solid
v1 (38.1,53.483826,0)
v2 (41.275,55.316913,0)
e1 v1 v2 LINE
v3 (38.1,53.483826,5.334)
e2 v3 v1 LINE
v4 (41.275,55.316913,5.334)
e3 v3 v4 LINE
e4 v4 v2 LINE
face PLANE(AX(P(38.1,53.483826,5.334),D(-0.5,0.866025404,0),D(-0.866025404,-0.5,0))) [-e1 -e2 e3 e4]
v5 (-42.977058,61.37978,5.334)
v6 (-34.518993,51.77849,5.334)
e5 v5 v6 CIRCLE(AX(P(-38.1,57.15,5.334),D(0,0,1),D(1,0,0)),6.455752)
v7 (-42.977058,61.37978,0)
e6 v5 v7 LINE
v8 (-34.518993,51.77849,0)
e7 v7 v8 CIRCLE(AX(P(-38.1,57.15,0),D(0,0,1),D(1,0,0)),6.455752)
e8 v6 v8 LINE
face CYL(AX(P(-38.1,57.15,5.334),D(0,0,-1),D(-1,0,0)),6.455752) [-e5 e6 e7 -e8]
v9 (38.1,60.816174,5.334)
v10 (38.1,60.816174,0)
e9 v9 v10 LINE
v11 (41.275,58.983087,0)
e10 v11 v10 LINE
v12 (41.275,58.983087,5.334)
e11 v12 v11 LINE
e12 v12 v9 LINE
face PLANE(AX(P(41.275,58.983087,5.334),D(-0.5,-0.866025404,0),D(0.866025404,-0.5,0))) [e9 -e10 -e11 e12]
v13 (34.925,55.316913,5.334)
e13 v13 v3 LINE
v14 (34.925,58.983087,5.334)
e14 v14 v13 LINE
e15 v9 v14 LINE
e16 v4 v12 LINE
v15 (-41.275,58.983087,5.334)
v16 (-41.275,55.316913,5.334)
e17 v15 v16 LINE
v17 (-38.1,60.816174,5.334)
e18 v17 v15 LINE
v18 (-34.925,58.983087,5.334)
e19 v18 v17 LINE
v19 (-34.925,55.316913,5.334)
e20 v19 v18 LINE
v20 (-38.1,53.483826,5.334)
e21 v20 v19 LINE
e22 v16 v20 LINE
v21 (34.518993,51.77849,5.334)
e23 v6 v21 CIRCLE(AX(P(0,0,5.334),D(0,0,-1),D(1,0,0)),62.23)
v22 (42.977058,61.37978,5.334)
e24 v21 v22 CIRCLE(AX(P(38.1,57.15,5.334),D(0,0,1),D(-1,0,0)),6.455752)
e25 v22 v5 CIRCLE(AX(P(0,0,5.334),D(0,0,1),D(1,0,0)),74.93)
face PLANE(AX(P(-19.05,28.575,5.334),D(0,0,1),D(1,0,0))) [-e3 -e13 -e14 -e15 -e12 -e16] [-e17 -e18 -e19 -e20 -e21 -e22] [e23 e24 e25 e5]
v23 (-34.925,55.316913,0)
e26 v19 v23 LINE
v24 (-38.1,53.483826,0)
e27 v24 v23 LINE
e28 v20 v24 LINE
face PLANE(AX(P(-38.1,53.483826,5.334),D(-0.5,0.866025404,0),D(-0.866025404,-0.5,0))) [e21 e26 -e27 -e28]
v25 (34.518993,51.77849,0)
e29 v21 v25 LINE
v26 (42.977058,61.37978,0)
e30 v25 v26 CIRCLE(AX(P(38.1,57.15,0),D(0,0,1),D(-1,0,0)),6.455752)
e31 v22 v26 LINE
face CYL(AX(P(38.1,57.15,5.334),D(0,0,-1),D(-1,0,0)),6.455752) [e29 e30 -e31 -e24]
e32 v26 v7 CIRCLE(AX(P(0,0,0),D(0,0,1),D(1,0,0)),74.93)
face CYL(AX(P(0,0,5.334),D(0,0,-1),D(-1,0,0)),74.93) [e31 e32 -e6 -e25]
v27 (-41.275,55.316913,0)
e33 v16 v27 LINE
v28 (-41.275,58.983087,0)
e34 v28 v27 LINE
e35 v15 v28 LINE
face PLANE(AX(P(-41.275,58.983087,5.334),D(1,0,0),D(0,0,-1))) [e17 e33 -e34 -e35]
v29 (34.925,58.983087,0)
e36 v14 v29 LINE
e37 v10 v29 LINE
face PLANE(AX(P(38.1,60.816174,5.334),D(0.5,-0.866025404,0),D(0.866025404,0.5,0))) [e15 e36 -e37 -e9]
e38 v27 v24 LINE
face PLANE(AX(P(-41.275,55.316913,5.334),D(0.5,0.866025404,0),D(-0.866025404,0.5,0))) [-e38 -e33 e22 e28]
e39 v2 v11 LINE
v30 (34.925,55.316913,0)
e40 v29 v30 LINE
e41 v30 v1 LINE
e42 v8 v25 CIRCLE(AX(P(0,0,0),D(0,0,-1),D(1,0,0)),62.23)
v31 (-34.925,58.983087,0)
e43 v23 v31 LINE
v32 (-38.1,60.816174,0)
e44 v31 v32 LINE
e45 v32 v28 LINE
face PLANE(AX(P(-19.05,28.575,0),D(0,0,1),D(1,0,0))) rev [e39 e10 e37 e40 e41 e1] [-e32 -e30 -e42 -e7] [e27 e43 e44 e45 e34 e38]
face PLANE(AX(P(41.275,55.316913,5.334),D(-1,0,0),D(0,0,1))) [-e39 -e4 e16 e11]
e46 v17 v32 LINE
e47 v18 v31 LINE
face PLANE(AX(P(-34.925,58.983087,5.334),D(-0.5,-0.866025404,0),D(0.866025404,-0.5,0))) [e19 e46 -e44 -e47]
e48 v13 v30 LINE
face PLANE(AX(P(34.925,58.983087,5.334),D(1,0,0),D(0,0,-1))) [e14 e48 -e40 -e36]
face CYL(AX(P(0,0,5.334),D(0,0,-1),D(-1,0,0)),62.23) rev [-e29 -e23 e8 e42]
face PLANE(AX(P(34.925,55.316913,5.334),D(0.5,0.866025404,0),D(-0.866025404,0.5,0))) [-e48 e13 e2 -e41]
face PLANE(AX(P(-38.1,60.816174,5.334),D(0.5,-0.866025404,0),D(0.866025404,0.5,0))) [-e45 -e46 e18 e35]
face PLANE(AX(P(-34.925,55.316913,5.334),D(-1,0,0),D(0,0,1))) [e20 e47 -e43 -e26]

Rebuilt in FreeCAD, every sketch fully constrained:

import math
import FreeCAD as App
import Part
import Sketcher
Q = App.Units.Quantity

doc = App.newDocument("Part")
body = doc.addObject("PartDesign::Body", "Body")

sketch1 = body.newObject("Sketcher::SketchObject", "Sketch")
sketch1.AttachmentSupport = (doc.getObject("XY_Plane"), [""])
sketch1.MapMode = "FlatFace"
sketch1.addGeometry(Part.ArcOfCircle(Part.Circle(App.Vector(0, 0, 0), App.Vector(0, 0, 1), 74.93), math.radians(55.000957), math.radians(124.999043)), False)
sketch1.addGeometry(Part.ArcOfCircle(Part.Circle(App.Vector(-38.1, 57.15, 0), App.Vector(0, 0, 1), 6.455752), math.radians(139.065516), math.radians(303.690068)), False)
sketch1.addGeometry(Part.ArcOfCircle(Part.Circle(App.Vector(0, 0, 0), App.Vector(0, 0, 1), 62.23), math.radians(56.309932), math.radians(123.690068)), False)
sketch1.addGeometry(Part.ArcOfCircle(Part.Circle(App.Vector(38.1, 57.15, 0), App.Vector(0, 0, 1), 6.455752), math.radians(-123.690068), math.radians(40.934484)), False)
sketch1.addGeometry(Part.LineSegment(App.Vector(-41.275, 58.983087, 0), App.Vector(-38.1, 60.816174, 0)), False)
sketch1.addGeometry(Part.LineSegment(App.Vector(-38.1, 60.816174, 0), App.Vector(-34.925, 58.983087, 0)), False)
sketch1.addGeometry(Part.LineSegment(App.Vector(-34.925, 58.983087, 0), App.Vector(-34.925, 55.316913, 0)), False)
sketch1.addGeometry(Part.LineSegment(App.Vector(-34.925, 55.316913, 0), App.Vector(-38.1, 53.483826, 0)), False)
sketch1.addGeometry(Part.LineSegment(App.Vector(-38.1, 53.483826, 0), App.Vector(-41.275, 55.316913, 0)), False)
sketch1.addGeometry(Part.LineSegment(App.Vector(-41.275, 55.316913, 0), App.Vector(-41.275, 58.983087, 0)), False)
sketch1.addGeometry(Part.LineSegment(App.Vector(34.925, 58.983087, 0), App.Vector(38.1, 60.816174, 0)), False)
sketch1.addGeometry(Part.LineSegment(App.Vector(38.1, 60.816174, 0), App.Vector(41.275, 58.983087, 0)), False)
sketch1.addGeometry(Part.LineSegment(App.Vector(41.275, 58.983087, 0), App.Vector(41.275, 55.316913, 0)), False)
sketch1.addGeometry(Part.LineSegment(App.Vector(41.275, 55.316913, 0), App.Vector(38.1, 53.483826, 0)), False)
sketch1.addGeometry(Part.LineSegment(App.Vector(38.1, 53.483826, 0), App.Vector(34.925, 55.316913, 0)), False)
sketch1.addGeometry(Part.LineSegment(App.Vector(34.925, 55.316913, 0), App.Vector(34.925, 58.983087, 0)), False)
sketch1.addConstraint(Sketcher.Constraint("Coincident", 0, 2, 1, 1))
sketch1.addConstraint(Sketcher.Constraint("Tangent", 1, 2, 2, 2))
sketch1.addConstraint(Sketcher.Constraint("Tangent", 2, 1, 3, 1))
sketch1.addConstraint(Sketcher.Constraint("Coincident", 3, 2, 0, 1))
sketch1.addConstraint(Sketcher.Constraint("Coincident", 4, 2, 5, 1))
sketch1.addConstraint(Sketcher.Constraint("Coincident", 5, 2, 6, 1))
sketch1.addConstraint(Sketcher.Constraint("Coincident", 6, 2, 7, 1))
sketch1.addConstraint(Sketcher.Constraint("Coincident", 7, 2, 8, 1))
sketch1.addConstraint(Sketcher.Constraint("Coincident", 8, 2, 9, 1))
sketch1.addConstraint(Sketcher.Constraint("Coincident", 9, 2, 4, 1))
sketch1.addConstraint(Sketcher.Constraint("Coincident", 10, 2, 11, 1))
sketch1.addConstraint(Sketcher.Constraint("Coincident", 11, 2, 12, 1))
sketch1.addConstraint(Sketcher.Constraint("Coincident", 12, 2, 13, 1))
sketch1.addConstraint(Sketcher.Constraint("Coincident", 13, 2, 14, 1))
sketch1.addConstraint(Sketcher.Constraint("Coincident", 14, 2, 15, 1))
sketch1.addConstraint(Sketcher.Constraint("Coincident", 15, 2, 10, 1))
sketch1.addConstraint(Sketcher.Constraint("Vertical", 6))
sketch1.addConstraint(Sketcher.Constraint("Vertical", 9))
sketch1.addConstraint(Sketcher.Constraint("Vertical", 12))
sketch1.addConstraint(Sketcher.Constraint("Vertical", 15))
sketch1.addConstraint(Sketcher.Constraint("Coincident", 0, 3, -1, 1))
sketch1.addConstraint(Sketcher.Constraint("Coincident", 2, 3, -1, 1))
sketch1.addConstraint(Sketcher.Constraint("Equal", 1, 3))
sketch1.addConstraint(Sketcher.Constraint("Symmetric", 4, 2, 10, 2, -2))
sketch1.addConstraint(Sketcher.Constraint("Symmetric", 9, 2, 11, 2, -2))
sketch1.addConstraint(Sketcher.Constraint("Symmetric", 7, 2, 13, 2, -2))
sketch1.addConstraint(Sketcher.Constraint("Symmetric", 6, 2, 14, 2, -2))
sketch1.addConstraint(Sketcher.Constraint("Parallel", 4, 7))
sketch1.addConstraint(Sketcher.Constraint("Parallel", 5, 8))
sketch1.addConstraint(Sketcher.Constraint("Parallel", 7, 10))
sketch1.addConstraint(Sketcher.Constraint("Parallel", 8, 11))
sketch1.addConstraint(Sketcher.Constraint("Parallel", 10, 13))
sketch1.addConstraint(Sketcher.Constraint("Horizontal", 1, 3, 3, 3))
sketch1.addConstraint(Sketcher.Constraint("Horizontal", 6, 2, 8, 2))
sketch1.addConstraint(Sketcher.Constraint("Horizontal", 5, 2, 9, 2))
sketch1.addConstraint(Sketcher.Constraint("Vertical", 1, 3, 4, 2))
sketch1.addConstraint(Sketcher.Constraint("Radius", 0, Q("2.95 in")))
sketch1.addConstraint(Sketcher.Constraint("Radius", 2, Q("2.45 in")))
sketch1.addConstraint(Sketcher.Constraint("Angle", 4, Q("30 deg")))
sketch1.addConstraint(Sketcher.Constraint("DistanceX", 1, 3, 3, 3, Q("3 in")))
sketch1.addConstraint(Sketcher.Constraint("DistanceY", -1, 1, 1, 3, Q("2.25 in")))
sketch1.addConstraint(Sketcher.Constraint("DistanceX", 8, 2, 6, 2, Q("0.25 in")))
sketch1.addConstraint(Sketcher.Constraint("DistanceY", 6, 2, 6, 1, 3.666174))
sketch1.addConstraint(Sketcher.Constraint("DistanceY", -1, 1, 4, 2, 60.816174))
pad1 = body.newObject("PartDesign::Pad", "Pad")
pad1.Profile = sketch1
pad1.Length = Q("0.21 in")

doc.recompute()
